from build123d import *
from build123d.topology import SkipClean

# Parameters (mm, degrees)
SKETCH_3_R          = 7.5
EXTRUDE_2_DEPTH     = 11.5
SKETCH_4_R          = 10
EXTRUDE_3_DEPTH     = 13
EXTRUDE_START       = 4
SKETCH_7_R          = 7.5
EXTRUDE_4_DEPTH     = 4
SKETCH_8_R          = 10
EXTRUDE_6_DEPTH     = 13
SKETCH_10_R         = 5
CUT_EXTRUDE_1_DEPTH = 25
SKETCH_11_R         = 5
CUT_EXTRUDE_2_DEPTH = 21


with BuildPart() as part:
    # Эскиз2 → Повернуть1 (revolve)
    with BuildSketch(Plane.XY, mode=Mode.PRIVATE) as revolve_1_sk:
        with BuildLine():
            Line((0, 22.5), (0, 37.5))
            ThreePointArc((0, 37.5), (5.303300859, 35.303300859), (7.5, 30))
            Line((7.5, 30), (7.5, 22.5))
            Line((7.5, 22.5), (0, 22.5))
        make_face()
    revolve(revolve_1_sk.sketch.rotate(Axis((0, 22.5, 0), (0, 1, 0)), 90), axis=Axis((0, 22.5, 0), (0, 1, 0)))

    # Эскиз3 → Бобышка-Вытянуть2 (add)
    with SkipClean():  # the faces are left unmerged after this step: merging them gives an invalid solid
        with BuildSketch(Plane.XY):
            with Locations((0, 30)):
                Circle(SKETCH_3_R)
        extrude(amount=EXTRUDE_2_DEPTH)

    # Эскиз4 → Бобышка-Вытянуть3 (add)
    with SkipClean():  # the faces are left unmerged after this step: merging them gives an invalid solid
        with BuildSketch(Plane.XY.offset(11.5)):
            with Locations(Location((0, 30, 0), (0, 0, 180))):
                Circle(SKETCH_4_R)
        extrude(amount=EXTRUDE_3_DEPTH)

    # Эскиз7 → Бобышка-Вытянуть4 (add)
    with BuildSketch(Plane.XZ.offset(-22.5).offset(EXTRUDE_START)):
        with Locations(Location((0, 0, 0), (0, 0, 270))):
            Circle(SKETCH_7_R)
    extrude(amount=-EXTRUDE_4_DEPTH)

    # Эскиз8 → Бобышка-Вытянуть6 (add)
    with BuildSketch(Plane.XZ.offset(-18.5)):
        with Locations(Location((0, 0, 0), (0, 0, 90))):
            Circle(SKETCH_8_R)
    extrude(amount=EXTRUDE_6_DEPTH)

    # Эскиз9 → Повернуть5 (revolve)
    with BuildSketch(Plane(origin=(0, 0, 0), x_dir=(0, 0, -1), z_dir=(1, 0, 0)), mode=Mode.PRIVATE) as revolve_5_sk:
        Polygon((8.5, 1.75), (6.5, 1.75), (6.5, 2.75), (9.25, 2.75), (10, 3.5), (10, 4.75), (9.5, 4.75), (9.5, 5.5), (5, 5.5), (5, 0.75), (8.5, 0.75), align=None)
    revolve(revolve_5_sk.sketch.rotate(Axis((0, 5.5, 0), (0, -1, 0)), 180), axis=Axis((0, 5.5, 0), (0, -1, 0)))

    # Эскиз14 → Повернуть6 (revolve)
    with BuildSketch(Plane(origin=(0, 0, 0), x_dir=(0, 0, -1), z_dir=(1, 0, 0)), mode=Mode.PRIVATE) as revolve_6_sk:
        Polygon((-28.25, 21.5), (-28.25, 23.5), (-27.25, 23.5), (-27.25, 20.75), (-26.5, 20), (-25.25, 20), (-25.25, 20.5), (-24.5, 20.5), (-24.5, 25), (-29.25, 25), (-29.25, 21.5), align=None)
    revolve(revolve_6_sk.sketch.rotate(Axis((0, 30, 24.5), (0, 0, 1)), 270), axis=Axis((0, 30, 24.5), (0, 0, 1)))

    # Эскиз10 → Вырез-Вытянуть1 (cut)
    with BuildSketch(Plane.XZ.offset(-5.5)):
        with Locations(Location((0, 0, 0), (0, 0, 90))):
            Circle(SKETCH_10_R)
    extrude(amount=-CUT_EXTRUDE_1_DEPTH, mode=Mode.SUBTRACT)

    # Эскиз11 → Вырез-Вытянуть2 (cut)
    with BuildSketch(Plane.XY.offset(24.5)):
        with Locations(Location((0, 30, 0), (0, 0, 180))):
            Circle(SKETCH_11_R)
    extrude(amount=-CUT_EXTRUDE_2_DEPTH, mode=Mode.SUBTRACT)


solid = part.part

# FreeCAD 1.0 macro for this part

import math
import FreeCAD as App
import Part
import Sketcher
from FreeCAD import Vector
Q = App.Units.Quantity


def add_polygon(sketch, points):
    """Adds a closed chain of lines whose ends are joined by coincident constraints."""
    first, n = sketch.GeometryCount, len(points)
    for a, b in zip(points, points[1:] + points[:1]):
        sketch.addGeometry(Part.LineSegment(App.Vector(*a, 0), App.Vector(*b, 0)), False)
    for i in range(n):
        sketch.addConstraint(Sketcher.Constraint("Coincident", first + i, 2, first + (i + 1) % n, 1))

doc = App.newDocument("Part")
params = doc.addObject("Spreadsheet::Sheet", "Params")
for row, (alias, value) in enumerate([
    ("sketch1_radius", "7.5 mm"),
    ("revolution_angle", "360 deg"),
    ("sketch2_diameter", "15 mm"),
    ("pad1_length", "11.5 mm"),
    ("sketch3_diameter", "20 mm"),
    ("pad2_length", "13 mm"),
    ("sketch4_diameter", "15 mm"),
    ("pad3_length", "4 mm"),
    ("sketch5_diameter", "20 mm"),
    ("pad4_length", "13 mm"),
    ("sketch6_width", "1 mm"),
    ("sketch6_height", "2 mm"),
    ("sketch6_height2", "0.5 mm"),
    ("sketch6_height3", "4.5 mm"),
    ("sketch6_height4", "3.5 mm"),
    ("revolution2_angle", "360 deg"),
    ("sketch7_width", "2 mm"),
    ("sketch7_height", "1 mm"),
    ("sketch7_width2", "0.5 mm"),
    ("sketch7_width3", "4.5 mm"),
    ("sketch7_width4", "3.5 mm"),
    ("revolution3_angle", "360 deg"),
    ("sketch8_diameter", "10 mm"),
    ("pocket1_length", "25 mm"),
    ("sketch9_diameter", "10 mm"),
    ("pocket2_length", "21 mm"),
], start=1):
    params.set(f"A{row}", alias)
    params.set(f"B{row}", "=" + value)
    params.setAlias(f"B{row}", alias)

body = doc.addObject("PartDesign::Body", "Body")

# Sketch on XY plane
sketch1 = doc.addObject("Sketcher::SketchObject", "Sketch")
body.addObject(sketch1)
sketch1.AttachmentSupport = (doc.XY_Plane, [""])
sketch1.MapMode = "FlatFace"
sketch1.addGeometry([
    Part.LineSegment(Vector(0, 37.5, 0), Vector(0, 22.5, 0)),
    Part.LineSegment(Vector(0, 22.5, 0), Vector(7.5, 22.5, 0)),
    Part.LineSegment(Vector(7.5, 22.5, 0), Vector(7.5, 30, 0)),
    Part.ArcOfCircle(Part.Circle(Vector(0, 30, 0), Vector(0, 0, 1), 7.5), math.radians(0), math.radians(90)),
], False)
sketch1.addConstraint([
    Sketcher.Constraint("Coincident", 0, 2, 1, 1),
    Sketcher.Constraint("Coincident", 1, 2, 2, 1),
    Sketcher.Constraint("Tangent", 2, 2, 3, 1),
    Sketcher.Constraint("Coincident", 3, 2, 0, 1),
    Sketcher.Constraint("Vertical", 0),
    Sketcher.Constraint("Horizontal", 1),
    Sketcher.Constraint("Vertical", 2),
    Sketcher.Constraint("PointOnObject", 3, 3, -2),
    Sketcher.Constraint("PointOnObject", 0, 2, -2),
    Sketcher.Constraint("Equal", 1, 2),
    Sketcher.Constraint("Radius", 3, Q("7.5 mm")),
    Sketcher.Constraint("DistanceY", -1, 1, 3, 3, Q("30 mm")),
])
sketch1.setExpression("Constraints[10]", "Params.sketch1_radius")
revolution = doc.addObject("PartDesign::Revolution", "Revolution")
body.addObject(revolution)
revolution.Profile = sketch1
revolution.ReferenceAxis = (sketch1, ["V_Axis"])
revolution.setExpression("Angle", "Params.revolution_angle")

# Sketch on XY plane
sketch2 = doc.addObject("Sketcher::SketchObject", "Sketch001")
body.addObject(sketch2)
sketch2.AttachmentSupport = (doc.XY_Plane, [""])
sketch2.MapMode = "FlatFace"
sketch2.addGeometry(Part.Circle(Vector(0, 30, 0), Vector(0, 0, 1), 7.5), False)
sketch2.addConstraint([
    Sketcher.Constraint("PointOnObject", 0, 3, -2),
    Sketcher.Constraint("Diameter", 0, Q("15 mm")),
    Sketcher.Constraint("DistanceY", -1, 1, 0, 3, Q("30 mm")),
])
sketch2.setExpression("Constraints[1]", "Params.sketch2_diameter")
pad1 = doc.addObject("PartDesign::Pad", "Pad")
body.addObject(pad1)
pad1.Profile = sketch2
pad1.setExpression("Length", "Params.pad1_length")

# Sketch on XY plane
sketch3 = doc.addObject("Sketcher::SketchObject", "Sketch002")
body.addObject(sketch3)
sketch3.AttachmentSupport = (doc.XY_Plane, [""])
sketch3.MapMode = "FlatFace"
sketch3.AttachmentOffset = App.Placement(Vector(0, 0, 11.5), App.Rotation())
sketch3.addGeometry(Part.Circle(Vector(0, 30, 0), Vector(0, 0, 1), 10), False)
sketch3.addConstraint([
    Sketcher.Constraint("PointOnObject", 0, 3, -2),
    Sketcher.Constraint("Diameter", 0, Q("20 mm")),
    Sketcher.Constraint("DistanceY", -1, 1, 0, 3, Q("30 mm")),
])
sketch3.setExpression("Constraints[1]", "Params.sketch3_diameter")
pad2 = doc.addObject("PartDesign::Pad", "Pad001")
body.addObject(pad2)
pad2.Profile = sketch3
pad2.setExpression("Length", "Params.pad2_length")

# Sketch on XZ plane
sketch4 = doc.addObject("Sketcher::SketchObject", "Sketch003")
body.addObject(sketch4)
sketch4.AttachmentSupport = (doc.XZ_Plane, [""])
sketch4.MapMode = "FlatFace"
sketch4.AttachmentOffset = App.Placement(Vector(0, 0, -18.5), App.Rotation())
sketch4.addGeometry(Part.Circle(Vector(0, 0, 0), Vector(0, 0, 1), 7.5), False)
sketch4.addConstraint([
    Sketcher.Constraint("Coincident", 0, 3, -1, 1),
    Sketcher.Constraint("Diameter", 0, Q("15 mm")),
])
sketch4.setExpression("Constraints[1]", "Params.sketch4_diameter")
pad3 = doc.addObject("PartDesign::Pad", "Pad002")
body.addObject(pad3)
pad3.Profile = sketch4
pad3.setExpression("Length", "Params.pad3_length")
pad3.Reversed = True

# Sketch on XZ plane
sketch5 = doc.addObject("Sketcher::SketchObject", "Sketch004")
body.addObject(sketch5)
sketch5.AttachmentSupport = (doc.XZ_Plane, [""])
sketch5.MapMode = "FlatFace"
sketch5.AttachmentOffset = App.Placement(Vector(0, 0, -18.5), App.Rotation())
sketch5.addGeometry(Part.Circle(Vector(0, 0, 0), Vector(0, 0, 1), 10), False)
sketch5.addConstraint([
    Sketcher.Constraint("Coincident", 0, 3, -1, 1),
    Sketcher.Constraint("Diameter", 0, Q("20 mm")),
])
sketch5.setExpression("Constraints[1]", "Params.sketch5_diameter")
pad4 = doc.addObject("PartDesign::Pad", "Pad003")
body.addObject(pad4)
pad4.Profile = sketch5
pad4.setExpression("Length", "Params.pad4_length")

# Sketch on YZ plane
sketch6 = doc.addObject("Sketcher::SketchObject", "Sketch005")
body.addObject(sketch6)
sketch6.AttachmentSupport = (doc.YZ_Plane, [""])
sketch6.MapMode = "FlatFace"
add_polygon(sketch6, [(1.75, -8.5), (1.75, -6.5), (2.75, -6.5), (2.75, -9.25), (3.5, -10), (4.75, -10), (4.75, -9.5), (5.5, -9.5), (5.5, -5), (0.75, -5), (0.75, -8.5)])  # lines 0-10
sketch6.addConstraint([
    Sketcher.Constraint("Vertical", 0),
    Sketcher.Constraint("Horizontal", 1),
    Sketcher.Constraint("Vertical", 2),
    Sketcher.Constraint("Horizontal", 4),
    Sketcher.Constraint("Vertical", 5),
    Sketcher.Constraint("Horizontal", 6),
    Sketcher.Constraint("Vertical", 7),
    Sketcher.Constraint("Horizontal", 8),
    Sketcher.Constraint("Vertical", 9),
    Sketcher.Constraint("Horizontal", 10),
    Sketcher.Constraint("Equal", 1, 10),
    Sketcher.Constraint("DistanceX", 1, 1, 1, 2, Q("1 mm")),
    Sketcher.Constraint("DistanceY", 0, 1, 0, 2, Q("2 mm")),
    Sketcher.Constraint("Angle", 3, Q("-45 deg")),
    Sketcher.Constraint("DistanceY", 5, 1, 5, 2, Q("0.5 mm")),
    Sketcher.Constraint("DistanceY", 7, 1, 7, 2, Q("4.5 mm")),
    Sketcher.Constraint("DistanceY", 9, 2, 9, 1, Q("3.5 mm")),
    Sketcher.Constraint("DistanceY", 3, 2, -1, 1, Q("10 mm")),
    Sketcher.Constraint("DistanceX", 2, 2, 4, 2, Q("2 mm")),
    Sketcher.Constraint("DistanceX", 3, 2, 6, 2, Q("2 mm")),
    Sketcher.Constraint("DistanceX", 4, 1, 4, 2, Q("1.25 mm")),
    Sketcher.Constraint("DistanceX", -1, 1, 3, 2, Q("3.5 mm")),
])
sketch6.setExpression("Constraints[22]", "Params.sketch6_width")
sketch6.setExpression("Constraints[23]", "Params.sketch6_height")
sketch6.setExpression("Constraints[25]", "Params.sketch6_height2")
sketch6.setExpression("Constraints[26]", "Params.sketch6_height3")
sketch6.setExpression("Constraints[27]", "Params.sketch6_height4")
revolution2 = doc.addObject("PartDesign::Revolution", "Revolution001")
body.addObject(revolution2)
revolution2.Profile = sketch6
revolution2.ReferenceAxis = (sketch6, ["H_Axis"])
revolution2.setExpression("Angle", "Params.revolution2_angle")

# Sketch on YZ plane
sketch7 = doc.addObject("Sketcher::SketchObject", "Sketch006")
body.addObject(sketch7)
sketch7.AttachmentSupport = (doc.YZ_Plane, [""])
sketch7.MapMode = "FlatFace"
add_polygon(sketch7, [(21.5, 28.25), (23.5, 28.25), (23.5, 27.25), (20.75, 27.25), (20, 26.5), (20, 25.25), (20.5, 25.25), (20.5, 24.5), (25, 24.5), (25, 29.25), (21.5, 29.25)])  # lines 0-10
sketch7.addGeometry(Part.LineSegment(Vector(30, 24.5, 0), Vector(30, 29.25, 0)), True)  # axis
sketch7.addConstraint([
    Sketcher.Constraint("Horizontal", 0),
    Sketcher.Constraint("Vertical", 1),
    Sketcher.Constraint("Horizontal", 2),
    Sketcher.Constraint("Vertical", 4),
    Sketcher.Constraint("Horizontal", 5),
    Sketcher.Constraint("Vertical", 6),
    Sketcher.Constraint("Horizontal", 7),
    Sketcher.Constraint("Vertical", 8),
    Sketcher.Constraint("Horizontal", 9),
    Sketcher.Constraint("Vertical", 10),
    Sketcher.Constraint("Vertical", 11),
    Sketcher.Constraint("Horizontal", 7, 2, 11, 1),
    Sketcher.Constraint("Horizontal", 9, 2, 11, 2),
    Sketcher.Constraint("Equal", 1, 10),
    Sketcher.Constraint("DistanceX", 0, 1, 0, 2, Q("2 mm")),
    Sketcher.Constraint("DistanceY", 1, 2, 1, 1, Q("1 mm")),
    Sketcher.Constraint("Angle", 3, Q("-135 deg")),
    Sketcher.Constraint("DistanceX", 5, 1, 5, 2, Q("0.5 mm")),
    Sketcher.Constraint("DistanceX", 7, 1, 7, 2, Q("4.5 mm")),
    Sketcher.Constraint("DistanceX", 9, 2, 9, 1, Q("3.5 mm")),
    Sketcher.Constraint("DistanceX", -1, 1, 3, 2, Q("20 mm")),
    Sketcher.Constraint("DistanceX", -1, 1, 11, 1, Q("30 mm")),
    Sketcher.Constraint("DistanceY", 4, 2, 2, 2, Q("2 mm")),
    Sketcher.Constraint("DistanceY", 6, 2, 3, 2, Q("2 mm")),
    Sketcher.Constraint("DistanceX", 2, 2, 2, 1, Q("2.75 mm")),
    Sketcher.Constraint("DistanceY", -1, 1, 3, 2, Q("26.5 mm")),
])
sketch7.setExpression("Constraints[25]", "Params.sketch7_width")
sketch7.setExpression("Constraints[26]", "Params.sketch7_height")
sketch7.setExpression("Constraints[28]", "Params.sketch7_width2")
sketch7.setExpression("Constraints[29]", "Params.sketch7_width3")
sketch7.setExpression("Constraints[30]", "Params.sketch7_width4")
revolution3 = doc.addObject("PartDesign::Revolution", "Revolution002")
body.addObject(revolution3)
revolution3.Profile = sketch7
revolution3.ReferenceAxis = (sketch7, ["Axis0"])
revolution3.setExpression("Angle", "Params.revolution3_angle")

# Sketch on XZ plane
sketch8 = doc.addObject("Sketcher::SketchObject", "Sketch007")
body.addObject(sketch8)
sketch8.AttachmentSupport = (doc.XZ_Plane, [""])
sketch8.MapMode = "FlatFace"
sketch8.AttachmentOffset = App.Placement(Vector(0, 0, -5.5), App.Rotation())
sketch8.addGeometry(Part.Circle(Vector(0, 0, 0), Vector(0, 0, 1), 5), False)
sketch8.addConstraint([
    Sketcher.Constraint("Coincident", 0, 3, -1, 1),
    Sketcher.Constraint("Diameter", 0, Q("10 mm")),
])
sketch8.setExpression("Constraints[1]", "Params.sketch8_diameter")
pocket1 = doc.addObject("PartDesign::Pocket", "Pocket")
body.addObject(pocket1)
pocket1.Profile = sketch8
pocket1.setExpression("Length", "Params.pocket1_length")

# Sketch on XY plane
sketch9 = doc.addObject("Sketcher::SketchObject", "Sketch008")
body.addObject(sketch9)
sketch9.AttachmentSupport = (doc.XY_Plane, [""])
sketch9.MapMode = "FlatFace"
sketch9.AttachmentOffset = App.Placement(Vector(0, 0, 24.5), App.Rotation())
sketch9.addGeometry(Part.Circle(Vector(0, 30, 0), Vector(0, 0, 1), 5), False)
sketch9.addConstraint([
    Sketcher.Constraint("PointOnObject", 0, 3, -2),
    Sketcher.Constraint("Diameter", 0, Q("10 mm")),
    Sketcher.Constraint("DistanceY", -1, 1, 0, 3, Q("30 mm")),
])
sketch9.setExpression("Constraints[1]", "Params.sketch9_diameter")
pocket2 = doc.addObject("PartDesign::Pocket", "Pocket001")
body.addObject(pocket2)
pocket2.Profile = sketch9
pocket2.setExpression("Length", "Params.pocket2_length")

doc.recompute()
